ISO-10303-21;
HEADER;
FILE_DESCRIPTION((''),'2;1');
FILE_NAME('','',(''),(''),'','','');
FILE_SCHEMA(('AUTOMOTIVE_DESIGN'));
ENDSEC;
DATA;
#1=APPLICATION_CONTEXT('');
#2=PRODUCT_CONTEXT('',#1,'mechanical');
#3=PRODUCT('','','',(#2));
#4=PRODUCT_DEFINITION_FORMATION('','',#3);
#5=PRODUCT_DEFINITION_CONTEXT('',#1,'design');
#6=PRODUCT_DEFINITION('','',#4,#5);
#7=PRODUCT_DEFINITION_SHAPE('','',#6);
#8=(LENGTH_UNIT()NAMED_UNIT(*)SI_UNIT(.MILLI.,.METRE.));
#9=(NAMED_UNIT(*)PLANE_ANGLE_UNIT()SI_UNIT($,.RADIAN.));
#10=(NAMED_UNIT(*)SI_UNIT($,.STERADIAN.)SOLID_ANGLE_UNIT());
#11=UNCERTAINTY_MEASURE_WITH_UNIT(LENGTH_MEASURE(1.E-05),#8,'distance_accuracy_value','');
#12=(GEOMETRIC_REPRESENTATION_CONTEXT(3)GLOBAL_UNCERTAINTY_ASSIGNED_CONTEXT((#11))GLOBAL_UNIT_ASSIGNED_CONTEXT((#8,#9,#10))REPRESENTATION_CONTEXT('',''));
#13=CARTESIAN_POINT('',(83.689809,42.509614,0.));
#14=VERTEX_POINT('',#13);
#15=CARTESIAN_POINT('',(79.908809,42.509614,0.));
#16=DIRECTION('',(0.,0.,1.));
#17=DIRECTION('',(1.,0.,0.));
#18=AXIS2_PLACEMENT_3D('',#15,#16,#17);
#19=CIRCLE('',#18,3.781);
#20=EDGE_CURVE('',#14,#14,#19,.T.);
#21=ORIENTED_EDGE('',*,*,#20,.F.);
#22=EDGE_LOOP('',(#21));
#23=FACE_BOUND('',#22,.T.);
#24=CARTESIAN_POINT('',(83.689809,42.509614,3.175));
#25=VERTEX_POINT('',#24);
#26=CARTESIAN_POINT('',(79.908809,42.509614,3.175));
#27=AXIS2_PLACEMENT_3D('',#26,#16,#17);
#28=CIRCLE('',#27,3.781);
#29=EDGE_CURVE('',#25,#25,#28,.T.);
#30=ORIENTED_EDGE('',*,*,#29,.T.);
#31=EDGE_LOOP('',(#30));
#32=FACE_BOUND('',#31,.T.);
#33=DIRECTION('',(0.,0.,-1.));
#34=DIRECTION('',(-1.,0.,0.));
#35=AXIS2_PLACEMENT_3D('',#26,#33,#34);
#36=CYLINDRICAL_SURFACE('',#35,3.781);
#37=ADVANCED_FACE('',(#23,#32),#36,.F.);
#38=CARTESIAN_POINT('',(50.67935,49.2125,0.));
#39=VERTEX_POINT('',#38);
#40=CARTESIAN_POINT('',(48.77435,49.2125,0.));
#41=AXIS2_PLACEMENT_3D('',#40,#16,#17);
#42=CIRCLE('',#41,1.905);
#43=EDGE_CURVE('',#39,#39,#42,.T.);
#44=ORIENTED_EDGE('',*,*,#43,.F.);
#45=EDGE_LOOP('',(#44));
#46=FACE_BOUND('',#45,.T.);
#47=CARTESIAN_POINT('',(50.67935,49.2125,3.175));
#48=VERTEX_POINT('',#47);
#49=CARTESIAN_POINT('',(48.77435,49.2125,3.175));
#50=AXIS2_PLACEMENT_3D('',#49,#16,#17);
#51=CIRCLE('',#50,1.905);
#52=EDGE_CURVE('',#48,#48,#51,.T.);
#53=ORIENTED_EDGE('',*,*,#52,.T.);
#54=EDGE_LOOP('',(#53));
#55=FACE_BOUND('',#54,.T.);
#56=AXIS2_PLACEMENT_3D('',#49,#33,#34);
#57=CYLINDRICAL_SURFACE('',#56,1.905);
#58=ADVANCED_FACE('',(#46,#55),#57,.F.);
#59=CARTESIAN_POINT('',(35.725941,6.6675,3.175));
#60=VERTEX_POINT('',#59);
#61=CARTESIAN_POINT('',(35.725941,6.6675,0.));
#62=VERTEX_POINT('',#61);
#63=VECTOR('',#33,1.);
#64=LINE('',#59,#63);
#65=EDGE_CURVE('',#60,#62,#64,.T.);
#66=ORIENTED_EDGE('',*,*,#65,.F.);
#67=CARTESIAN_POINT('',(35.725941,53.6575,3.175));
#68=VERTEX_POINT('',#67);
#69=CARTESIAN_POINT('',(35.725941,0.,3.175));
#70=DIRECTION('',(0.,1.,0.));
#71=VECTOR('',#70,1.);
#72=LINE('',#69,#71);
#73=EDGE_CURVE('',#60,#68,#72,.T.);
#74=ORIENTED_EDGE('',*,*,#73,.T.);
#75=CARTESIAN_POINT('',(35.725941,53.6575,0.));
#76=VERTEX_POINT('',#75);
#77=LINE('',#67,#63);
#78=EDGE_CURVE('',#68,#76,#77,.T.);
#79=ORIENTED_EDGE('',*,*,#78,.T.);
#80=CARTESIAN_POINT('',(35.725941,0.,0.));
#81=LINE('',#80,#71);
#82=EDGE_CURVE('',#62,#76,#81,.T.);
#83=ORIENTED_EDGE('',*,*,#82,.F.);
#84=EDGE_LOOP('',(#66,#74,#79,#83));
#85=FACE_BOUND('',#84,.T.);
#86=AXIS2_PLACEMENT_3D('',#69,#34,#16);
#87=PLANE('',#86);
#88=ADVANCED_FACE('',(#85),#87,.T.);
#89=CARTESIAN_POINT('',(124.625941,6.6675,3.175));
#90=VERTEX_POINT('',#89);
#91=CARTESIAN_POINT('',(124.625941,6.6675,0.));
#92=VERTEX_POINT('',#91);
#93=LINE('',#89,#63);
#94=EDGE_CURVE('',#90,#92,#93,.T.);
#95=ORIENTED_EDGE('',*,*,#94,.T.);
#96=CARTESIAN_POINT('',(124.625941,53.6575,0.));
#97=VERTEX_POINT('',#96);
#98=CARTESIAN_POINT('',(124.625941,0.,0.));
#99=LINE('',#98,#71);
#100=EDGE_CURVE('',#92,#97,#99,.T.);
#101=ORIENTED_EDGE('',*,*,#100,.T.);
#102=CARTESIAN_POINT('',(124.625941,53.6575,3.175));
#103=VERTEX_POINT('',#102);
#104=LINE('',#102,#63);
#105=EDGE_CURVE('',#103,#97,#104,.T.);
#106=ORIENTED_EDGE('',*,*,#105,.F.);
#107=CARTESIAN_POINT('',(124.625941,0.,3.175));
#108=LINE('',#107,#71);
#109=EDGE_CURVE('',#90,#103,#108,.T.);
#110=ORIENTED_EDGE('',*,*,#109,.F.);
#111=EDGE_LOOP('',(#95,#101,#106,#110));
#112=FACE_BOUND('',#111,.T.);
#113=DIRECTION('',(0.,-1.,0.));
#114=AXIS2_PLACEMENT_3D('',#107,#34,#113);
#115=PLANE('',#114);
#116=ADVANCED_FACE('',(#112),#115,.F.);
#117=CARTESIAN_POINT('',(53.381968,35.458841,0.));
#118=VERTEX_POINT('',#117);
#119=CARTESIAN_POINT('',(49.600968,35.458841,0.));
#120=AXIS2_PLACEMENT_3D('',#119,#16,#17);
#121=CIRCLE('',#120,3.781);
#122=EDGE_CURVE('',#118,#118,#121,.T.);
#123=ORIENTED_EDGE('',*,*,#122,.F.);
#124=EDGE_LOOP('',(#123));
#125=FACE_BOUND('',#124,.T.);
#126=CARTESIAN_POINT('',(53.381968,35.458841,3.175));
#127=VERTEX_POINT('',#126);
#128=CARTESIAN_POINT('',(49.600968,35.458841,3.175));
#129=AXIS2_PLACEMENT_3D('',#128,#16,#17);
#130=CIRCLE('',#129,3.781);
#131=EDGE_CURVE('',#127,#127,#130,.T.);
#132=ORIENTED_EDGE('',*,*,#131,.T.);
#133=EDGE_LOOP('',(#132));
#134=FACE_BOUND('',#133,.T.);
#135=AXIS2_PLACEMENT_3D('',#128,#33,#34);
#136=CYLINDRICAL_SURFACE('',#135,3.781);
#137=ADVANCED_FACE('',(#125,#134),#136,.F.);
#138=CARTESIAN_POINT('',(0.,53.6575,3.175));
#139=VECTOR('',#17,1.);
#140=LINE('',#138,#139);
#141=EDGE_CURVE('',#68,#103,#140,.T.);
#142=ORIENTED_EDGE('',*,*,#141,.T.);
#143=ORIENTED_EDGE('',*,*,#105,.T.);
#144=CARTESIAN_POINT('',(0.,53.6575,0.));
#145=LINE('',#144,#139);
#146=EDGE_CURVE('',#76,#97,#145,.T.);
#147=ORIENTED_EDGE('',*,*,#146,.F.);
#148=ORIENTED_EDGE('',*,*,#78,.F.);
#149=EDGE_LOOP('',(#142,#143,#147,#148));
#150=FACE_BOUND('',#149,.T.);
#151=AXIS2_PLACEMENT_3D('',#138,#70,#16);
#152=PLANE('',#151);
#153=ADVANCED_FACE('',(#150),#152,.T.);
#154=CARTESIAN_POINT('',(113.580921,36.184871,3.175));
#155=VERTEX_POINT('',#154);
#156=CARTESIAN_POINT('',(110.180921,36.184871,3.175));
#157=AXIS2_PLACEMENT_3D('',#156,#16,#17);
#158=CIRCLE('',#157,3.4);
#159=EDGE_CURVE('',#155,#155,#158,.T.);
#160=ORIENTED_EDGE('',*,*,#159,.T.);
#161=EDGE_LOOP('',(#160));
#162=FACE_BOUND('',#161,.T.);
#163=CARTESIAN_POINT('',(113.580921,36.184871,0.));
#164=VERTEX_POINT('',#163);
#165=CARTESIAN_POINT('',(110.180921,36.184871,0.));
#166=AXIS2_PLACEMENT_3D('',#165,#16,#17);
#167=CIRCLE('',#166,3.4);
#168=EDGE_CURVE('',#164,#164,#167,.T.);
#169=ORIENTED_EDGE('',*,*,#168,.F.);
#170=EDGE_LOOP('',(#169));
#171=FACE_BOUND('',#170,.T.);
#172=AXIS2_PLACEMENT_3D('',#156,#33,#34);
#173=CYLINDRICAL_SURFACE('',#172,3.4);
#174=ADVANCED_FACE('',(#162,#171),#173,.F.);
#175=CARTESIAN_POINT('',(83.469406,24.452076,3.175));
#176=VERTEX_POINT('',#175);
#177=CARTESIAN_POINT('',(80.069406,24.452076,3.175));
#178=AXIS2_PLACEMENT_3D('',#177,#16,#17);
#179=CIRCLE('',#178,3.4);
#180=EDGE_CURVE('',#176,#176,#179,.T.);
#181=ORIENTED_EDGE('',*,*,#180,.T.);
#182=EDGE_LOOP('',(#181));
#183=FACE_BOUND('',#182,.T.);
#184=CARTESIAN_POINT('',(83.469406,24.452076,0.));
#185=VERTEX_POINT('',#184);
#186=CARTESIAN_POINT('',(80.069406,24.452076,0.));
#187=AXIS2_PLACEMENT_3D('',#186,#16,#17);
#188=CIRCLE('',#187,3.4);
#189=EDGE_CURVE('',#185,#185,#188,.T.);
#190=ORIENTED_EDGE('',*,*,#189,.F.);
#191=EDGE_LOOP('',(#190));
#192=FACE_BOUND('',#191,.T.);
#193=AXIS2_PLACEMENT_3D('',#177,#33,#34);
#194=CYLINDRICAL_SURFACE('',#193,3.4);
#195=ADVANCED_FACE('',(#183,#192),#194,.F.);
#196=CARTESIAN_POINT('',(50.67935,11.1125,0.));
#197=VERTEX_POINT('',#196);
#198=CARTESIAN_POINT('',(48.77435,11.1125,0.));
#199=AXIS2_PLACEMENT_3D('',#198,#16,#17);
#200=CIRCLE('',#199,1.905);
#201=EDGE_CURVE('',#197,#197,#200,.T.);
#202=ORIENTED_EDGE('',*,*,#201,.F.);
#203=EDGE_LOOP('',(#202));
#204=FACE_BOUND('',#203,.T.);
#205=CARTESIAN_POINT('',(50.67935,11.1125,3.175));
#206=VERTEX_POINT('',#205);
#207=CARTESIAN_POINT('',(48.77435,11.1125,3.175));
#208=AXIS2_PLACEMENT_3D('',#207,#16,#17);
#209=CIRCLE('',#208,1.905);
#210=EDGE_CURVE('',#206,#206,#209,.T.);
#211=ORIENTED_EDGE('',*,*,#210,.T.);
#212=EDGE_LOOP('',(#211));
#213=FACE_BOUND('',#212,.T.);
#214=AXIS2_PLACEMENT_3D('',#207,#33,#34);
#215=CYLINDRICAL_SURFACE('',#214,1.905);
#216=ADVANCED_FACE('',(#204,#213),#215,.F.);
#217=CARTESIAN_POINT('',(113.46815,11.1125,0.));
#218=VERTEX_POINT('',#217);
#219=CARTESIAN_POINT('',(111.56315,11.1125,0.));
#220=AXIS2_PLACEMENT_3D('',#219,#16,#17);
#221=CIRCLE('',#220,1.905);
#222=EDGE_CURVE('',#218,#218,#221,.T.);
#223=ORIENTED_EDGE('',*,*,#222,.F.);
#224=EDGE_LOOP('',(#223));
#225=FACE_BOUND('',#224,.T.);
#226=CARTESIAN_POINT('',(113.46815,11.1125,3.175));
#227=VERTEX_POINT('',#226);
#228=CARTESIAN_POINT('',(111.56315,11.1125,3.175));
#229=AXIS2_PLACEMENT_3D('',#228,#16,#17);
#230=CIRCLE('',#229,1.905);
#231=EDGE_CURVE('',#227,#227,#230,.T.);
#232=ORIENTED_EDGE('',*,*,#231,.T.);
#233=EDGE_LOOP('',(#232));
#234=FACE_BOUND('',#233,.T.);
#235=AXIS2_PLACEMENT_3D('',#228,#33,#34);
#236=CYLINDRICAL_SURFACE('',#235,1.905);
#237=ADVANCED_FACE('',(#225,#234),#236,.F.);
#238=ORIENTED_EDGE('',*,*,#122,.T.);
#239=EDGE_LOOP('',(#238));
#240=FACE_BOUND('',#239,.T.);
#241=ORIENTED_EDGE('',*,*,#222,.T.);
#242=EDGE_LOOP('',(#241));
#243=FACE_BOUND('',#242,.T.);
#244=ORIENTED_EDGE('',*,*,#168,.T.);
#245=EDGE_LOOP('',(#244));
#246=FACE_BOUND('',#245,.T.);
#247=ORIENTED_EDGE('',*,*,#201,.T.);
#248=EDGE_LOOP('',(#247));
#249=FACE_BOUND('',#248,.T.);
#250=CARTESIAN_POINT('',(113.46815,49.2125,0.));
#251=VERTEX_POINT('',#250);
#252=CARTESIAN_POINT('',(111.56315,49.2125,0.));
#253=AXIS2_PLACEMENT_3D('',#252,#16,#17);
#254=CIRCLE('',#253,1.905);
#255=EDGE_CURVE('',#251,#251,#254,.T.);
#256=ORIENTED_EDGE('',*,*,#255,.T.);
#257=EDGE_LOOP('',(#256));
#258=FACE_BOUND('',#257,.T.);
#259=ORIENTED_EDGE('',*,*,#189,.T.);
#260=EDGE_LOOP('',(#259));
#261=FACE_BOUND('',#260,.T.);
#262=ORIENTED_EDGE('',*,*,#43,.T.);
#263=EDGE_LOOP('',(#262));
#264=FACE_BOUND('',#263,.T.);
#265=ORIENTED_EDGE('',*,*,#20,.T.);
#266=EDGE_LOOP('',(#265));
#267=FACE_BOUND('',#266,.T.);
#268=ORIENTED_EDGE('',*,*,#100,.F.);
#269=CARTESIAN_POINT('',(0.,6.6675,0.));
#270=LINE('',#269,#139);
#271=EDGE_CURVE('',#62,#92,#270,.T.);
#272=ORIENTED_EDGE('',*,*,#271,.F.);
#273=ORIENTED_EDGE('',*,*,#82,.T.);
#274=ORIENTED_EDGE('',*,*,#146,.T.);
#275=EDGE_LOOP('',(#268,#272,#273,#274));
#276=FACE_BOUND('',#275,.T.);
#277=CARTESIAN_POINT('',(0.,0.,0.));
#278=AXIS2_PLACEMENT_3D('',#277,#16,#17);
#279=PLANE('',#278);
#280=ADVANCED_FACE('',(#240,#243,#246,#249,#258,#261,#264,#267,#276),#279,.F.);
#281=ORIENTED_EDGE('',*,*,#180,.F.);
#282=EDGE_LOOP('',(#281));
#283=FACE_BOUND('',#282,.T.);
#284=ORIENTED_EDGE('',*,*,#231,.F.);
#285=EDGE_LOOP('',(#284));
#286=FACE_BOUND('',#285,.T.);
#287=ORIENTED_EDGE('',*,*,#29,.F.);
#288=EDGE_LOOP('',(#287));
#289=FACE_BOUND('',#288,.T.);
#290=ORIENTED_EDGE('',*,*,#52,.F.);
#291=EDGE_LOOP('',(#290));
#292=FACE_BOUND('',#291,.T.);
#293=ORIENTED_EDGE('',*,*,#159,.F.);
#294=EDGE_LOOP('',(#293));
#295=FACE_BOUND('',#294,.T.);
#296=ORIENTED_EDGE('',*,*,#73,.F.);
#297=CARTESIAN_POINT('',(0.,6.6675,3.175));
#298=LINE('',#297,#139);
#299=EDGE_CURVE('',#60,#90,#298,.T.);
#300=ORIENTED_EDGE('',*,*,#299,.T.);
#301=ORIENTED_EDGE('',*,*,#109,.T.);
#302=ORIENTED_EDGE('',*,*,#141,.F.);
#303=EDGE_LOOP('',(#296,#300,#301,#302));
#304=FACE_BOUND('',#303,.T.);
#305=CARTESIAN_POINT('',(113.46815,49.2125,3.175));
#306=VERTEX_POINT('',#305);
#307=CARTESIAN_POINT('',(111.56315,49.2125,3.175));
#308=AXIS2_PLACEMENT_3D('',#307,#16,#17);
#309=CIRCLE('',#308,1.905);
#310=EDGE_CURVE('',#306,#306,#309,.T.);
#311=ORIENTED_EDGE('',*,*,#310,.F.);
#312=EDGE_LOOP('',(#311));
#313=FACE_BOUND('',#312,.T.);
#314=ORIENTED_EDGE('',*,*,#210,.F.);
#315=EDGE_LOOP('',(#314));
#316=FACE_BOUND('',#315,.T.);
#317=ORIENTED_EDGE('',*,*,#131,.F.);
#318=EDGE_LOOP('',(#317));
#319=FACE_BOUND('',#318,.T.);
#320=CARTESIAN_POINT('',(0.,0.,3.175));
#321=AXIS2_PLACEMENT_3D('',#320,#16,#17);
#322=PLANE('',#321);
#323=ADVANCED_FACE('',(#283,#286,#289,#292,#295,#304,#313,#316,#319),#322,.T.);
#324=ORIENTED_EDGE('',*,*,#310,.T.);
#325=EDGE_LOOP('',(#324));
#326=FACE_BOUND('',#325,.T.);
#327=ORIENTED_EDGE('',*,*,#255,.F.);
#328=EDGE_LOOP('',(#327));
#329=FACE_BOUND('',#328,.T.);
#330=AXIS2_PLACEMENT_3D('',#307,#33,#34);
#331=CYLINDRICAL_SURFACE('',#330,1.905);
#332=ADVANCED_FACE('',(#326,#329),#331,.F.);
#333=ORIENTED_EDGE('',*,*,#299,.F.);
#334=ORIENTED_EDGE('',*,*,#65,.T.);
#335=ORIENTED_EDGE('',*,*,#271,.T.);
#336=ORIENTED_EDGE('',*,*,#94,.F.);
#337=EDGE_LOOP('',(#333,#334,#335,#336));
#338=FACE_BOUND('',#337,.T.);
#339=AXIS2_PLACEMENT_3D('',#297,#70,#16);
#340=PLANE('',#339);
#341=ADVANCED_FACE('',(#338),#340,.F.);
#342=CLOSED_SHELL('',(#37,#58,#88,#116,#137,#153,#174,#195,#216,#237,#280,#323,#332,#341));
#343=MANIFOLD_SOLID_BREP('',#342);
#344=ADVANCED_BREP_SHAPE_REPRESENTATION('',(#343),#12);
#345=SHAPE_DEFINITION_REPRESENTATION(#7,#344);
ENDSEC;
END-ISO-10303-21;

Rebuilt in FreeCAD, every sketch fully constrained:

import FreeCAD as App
import Part
import Sketcher
from FreeCAD import Vector
Q = App.Units.Quantity


def add_polygon(sketch, points):
    """Adds a closed chain of lines whose ends are joined by coincident constraints."""
    first, n = sketch.GeometryCount, len(points)
    for a, b in zip(points, points[1:] + points[:1]):
        sketch.addGeometry(Part.LineSegment(App.Vector(*a, 0), App.Vector(*b, 0)), False)
    for i in range(n):
        sketch.addConstraint(Sketcher.Constraint("Coincident", first + i, 2, first + (i + 1) % n, 1))

doc = App.newDocument("Part")
body = doc.addObject("PartDesign::Body", "Body")

sketch1 = body.newObject("Sketcher::SketchObject", "Sketch")
sketch1.AttachmentSupport = (doc.getObject("XY_Plane"), [""])
sketch1.MapMode = "FlatFace"
add_polygon(sketch1, [(35.7, 53.7), (35.7, 6.7), (124.6, 6.7), (124.6, 53.7)])
sketch1.addGeometry(Part.Circle(Vector(48.8, 11.1, 0), Vector(0, 0, 1), 1.9), False)
sketch1.addGeometry(Part.Circle(Vector(111.6, 11.1, 0), Vector(0, 0, 1), 1.9), False)
sketch1.addGeometry(Part.Circle(Vector(80.1, 24.5, 0), Vector(0, 0, 1), 3.4), False)
sketch1.addGeometry(Part.Circle(Vector(49.6, 35.5, 0), Vector(0, 0, 1), 3.8), False)
sketch1.addGeometry(Part.Circle(Vector(48.8, 49.2, 0), Vector(0, 0, 1), 1.9), False)
sketch1.addGeometry(Part.Circle(Vector(110.2, 36.2, 0), Vector(0, 0, 1), 3.4), False)
sketch1.addGeometry(Part.Circle(Vector(79.9, 42.5, 0), Vector(0, 0, 1), 3.8), False)
sketch1.addGeometry(Part.Circle(Vector(111.6, 49.2, 0), Vector(0, 0, 1), 1.9), False)
sketch1.addConstraint([
    Sketcher.Constraint("Vertical", 0),
    Sketcher.Constraint("Horizontal", 1),
    Sketcher.Constraint("Vertical", 2),
    Sketcher.Constraint("Horizontal", 3),
    Sketcher.Constraint("Equal", 4, 5),
    Sketcher.Constraint("Equal", 5, 8),
    Sketcher.Constraint("Equal", 6, 9),
    Sketcher.Constraint("Equal", 7, 10),
    Sketcher.Constraint("Equal", 8, 11),
    Sketcher.Constraint("Horizontal", 4, 3, 5, 3),
    Sketcher.Constraint("Horizontal", 8, 3, 11, 3),
    Sketcher.Constraint("Vertical", 4, 3, 8, 3),
    Sketcher.Constraint("Vertical", 5, 3, 11, 3),
    Sketcher.Constraint("Diameter", 4, Q("0.15 in")),
    Sketcher.Constraint("DistanceX", 1, 1, 1, 2, Q("3.5 in")),
    Sketcher.Constraint("DistanceY", 0, 2, 0, 1, Q("1.85 in")),
    Sketcher.Constraint("DistanceY", 4, 3, 8, 3, Q("1.5 in")),
    Sketcher.Constraint("Diameter", 6, Q("6.8 mm")),
    Sketcher.Constraint("Diameter", 7, Q("7.562 mm")),
    Sketcher.Constraint("DistanceY", -1, 1, 4, 3, Q("0.4375 in")),
    Sketcher.Constraint("DistanceX", 4, 3, 5, 3, Q("2.472 in")),
    Sketcher.Constraint("DistanceY", 0, 2, 4, 3, Q("0.175 in")),
    Sketcher.Constraint("DistanceX", -1, 1, 4, 3, Q("48.77435 mm")),
    Sketcher.Constraint("DistanceX", -1, 1, 7, 3, Q("49.600968 mm")),
    Sketcher.Constraint("DistanceY", -1, 1, 7, 3, Q("35.458841 mm")),
    Sketcher.Constraint("DistanceX", -1, 1, 9, 3, Q("110.180921 mm")),
    Sketcher.Constraint("DistanceY", -1, 1, 9, 3, Q("36.184871 mm")),
    Sketcher.Constraint("DistanceX", -1, 1, 10, 3, Q("79.908809 mm")),
    Sketcher.Constraint("DistanceX", -1, 1, 0, 2, Q("35.725941 mm")),
    Sketcher.Constraint("DistanceX", 7, 3, 6, 3, Q("30.468438 mm")),
    Sketcher.Constraint("DistanceY", 6, 3, 10, 3, Q("18.057538 mm")),
    Sketcher.Constraint("DistanceY", -1, 1, 6, 3, Q("24.452076 mm")),
])
pad1 = body.newObject("PartDesign::Pad", "Pad")
pad1.Profile = sketch1
pad1.Length = Q("0.125 in")

doc.recompute()
